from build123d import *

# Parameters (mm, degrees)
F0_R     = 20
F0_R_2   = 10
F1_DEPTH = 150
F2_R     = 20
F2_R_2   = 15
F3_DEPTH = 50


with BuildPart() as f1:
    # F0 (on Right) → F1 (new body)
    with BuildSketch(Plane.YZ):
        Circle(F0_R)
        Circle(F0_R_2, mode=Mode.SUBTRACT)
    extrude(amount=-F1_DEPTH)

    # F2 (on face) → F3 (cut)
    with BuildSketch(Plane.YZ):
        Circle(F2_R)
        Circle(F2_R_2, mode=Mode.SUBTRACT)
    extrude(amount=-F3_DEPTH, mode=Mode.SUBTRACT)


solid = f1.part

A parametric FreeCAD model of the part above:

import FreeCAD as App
import Part
import Sketcher

V = App.Vector

doc = App.newDocument("Part")
body = doc.addObject("PartDesign::Body", "Body")

# Sketch on YZ plane
sketch1 = doc.addObject("Sketcher::SketchObject", "Sketch")
body.addObject(sketch1)
sketch1.AttachmentSupport = (doc.YZ_Plane, [""])
sketch1.MapMode = "FlatFace"
sketch1.addGeometry([
    Part.Circle(V(0, 0, 0), V(0, 0, 1), 20),
    Part.Circle(V(0, 0, 0), V(0, 0, 1), 10),
], False)
sketch1.addConstraint([
    Sketcher.Constraint("Coincident", 0, 3, -1, 1),
    Sketcher.Constraint("Coincident", 1, 3, -1, 1),
    Sketcher.Constraint("Diameter", 0, 40.0),
    Sketcher.Constraint("Diameter", 1, 20.0),
])
pad1 = doc.addObject("PartDesign::Pad", "Pad")
body.addObject(pad1)
pad1.Profile = sketch1
pad1.Length = 150
pad1.Reversed = True

# Sketch on YZ plane
sketch2 = doc.addObject("Sketcher::SketchObject", "Sketch001")
body.addObject(sketch2)
sketch2.AttachmentSupport = (doc.YZ_Plane, [""])
sketch2.MapMode = "FlatFace"
sketch2.addGeometry([
    Part.Circle(V(0, 0, 0), V(0, 0, 1), 20),
    Part.Circle(V(0, 0, 0), V(0, 0, 1), 15),
], False)
sketch2.addConstraint([
    Sketcher.Constraint("Coincident", 0, 3, -1, 1),
    Sketcher.Constraint("Coincident", 1, 3, -1, 1),
    Sketcher.Constraint("Diameter", 0, 40.0),
    Sketcher.Constraint("Diameter", 1, 30.0),
])
pocket1 = doc.addObject("PartDesign::Pocket", "Pocket")
body.addObject(pocket1)
pocket1.Profile = sketch2
pocket1.Length = 50

doc.recompute()
